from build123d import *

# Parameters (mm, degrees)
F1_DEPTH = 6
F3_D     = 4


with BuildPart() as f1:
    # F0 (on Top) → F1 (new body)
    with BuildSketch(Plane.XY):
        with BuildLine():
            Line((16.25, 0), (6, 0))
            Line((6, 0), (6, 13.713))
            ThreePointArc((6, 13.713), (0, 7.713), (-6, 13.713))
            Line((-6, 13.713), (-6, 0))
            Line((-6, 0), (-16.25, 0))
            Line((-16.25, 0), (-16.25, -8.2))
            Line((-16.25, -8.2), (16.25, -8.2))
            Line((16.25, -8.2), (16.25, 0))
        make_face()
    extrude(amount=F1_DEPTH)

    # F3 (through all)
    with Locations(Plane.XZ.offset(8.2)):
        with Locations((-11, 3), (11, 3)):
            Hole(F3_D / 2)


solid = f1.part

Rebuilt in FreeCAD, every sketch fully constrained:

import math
import FreeCAD as App
import Part
import Sketcher
Q = App.Units.Quantity

doc = App.newDocument("Part")
body = doc.addObject("PartDesign::Body", "Body")

# Sketch on XY plane
sketch1 = doc.addObject("Sketcher::SketchObject", "Sketch")
body.addObject(sketch1)
sketch1.AttachmentSupport = (doc.XY_Plane, [""])
sketch1.MapMode = "FlatFace"
sketch1.addGeometry([
    Part.LineSegment(App.Vector(16, 0, 0), App.Vector(6, 0, 0)),  # 0
    Part.LineSegment(App.Vector(6, 0, 0), App.Vector(6, 14, 0)),  # 1
    Part.ArcOfCircle(Part.Circle(App.Vector(0, 14, 0), App.Vector(0, 0, 1), 6), math.radians(180), math.radians(360)),  # 2
    Part.LineSegment(App.Vector(-6, 14, 0), App.Vector(-6, 0, 0)),  # 3
    Part.LineSegment(App.Vector(-6, 0, 0), App.Vector(-16, 0, 0)),  # 4
    Part.LineSegment(App.Vector(-16, 0, 0), App.Vector(-16, -8, 0)),  # 5
    Part.LineSegment(App.Vector(-16, -8, 0), App.Vector(16, -8, 0)),  # 6
    Part.LineSegment(App.Vector(16, -8, 0), App.Vector(16, 0, 0)),  # 7
], False)
sketch1.addConstraint([
    Sketcher.Constraint("Coincident", 0, 2, 1, 1),
    Sketcher.Constraint("Tangent", 1, 2, 2, 2),
    Sketcher.Constraint("Tangent", 2, 1, 3, 1),
    Sketcher.Constraint("Coincident", 3, 2, 4, 1),
    Sketcher.Constraint("Coincident", 4, 2, 5, 1),
    Sketcher.Constraint("Coincident", 5, 2, 6, 1),
    Sketcher.Constraint("Coincident", 6, 2, 7, 1),
    Sketcher.Constraint("Coincident", 7, 2, 0, 1),
    Sketcher.Constraint("Horizontal", 0),
    Sketcher.Constraint("Vertical", 1),
    Sketcher.Constraint("Vertical", 3),
    Sketcher.Constraint("Horizontal", 4),
    Sketcher.Constraint("Vertical", 5),
    Sketcher.Constraint("Horizontal", 6),
    Sketcher.Constraint("Vertical", 7),
    Sketcher.Constraint("Symmetric", 0, 2, 3, 2, -1, 1),
    Sketcher.Constraint("Symmetric", 4, 2, 7, 2, -2),
    Sketcher.Constraint("Radius", 2, Q("6 mm")),
    Sketcher.Constraint("DistanceX", 6, 1, 6, 2, Q("32.5 mm")),
    Sketcher.Constraint("DistanceY", 5, 2, 5, 1, Q("8.2 mm")),
    Sketcher.Constraint("DistanceY", 1, 1, 1, 2, Q("13.713 mm")),
])
pad1 = doc.addObject("PartDesign::Pad", "Pad")
body.addObject(pad1)
pad1.Profile = sketch1
pad1.Length = 6

# Sketch on XZ plane
sketch2 = doc.addObject("Sketcher::SketchObject", "Sketch001")
body.addObject(sketch2)
sketch2.AttachmentSupport = (doc.XZ_Plane, [""])
sketch2.MapMode = "FlatFace"
sketch2.AttachmentOffset = App.Placement(App.Vector(0, 0, 8.2), App.Rotation())
sketch2.addGeometry([
    Part.Circle(App.Vector(-11, 3, 0), App.Vector(0, 0, 1), 2),
    Part.Circle(App.Vector(11, 3, 0), App.Vector(0, 0, 1), 2),
], False)
sketch2.addConstraint([
    Sketcher.Constraint("Equal", 0, 1),
    Sketcher.Constraint("Symmetric", 0, 3, 1, 3, -2),
    Sketcher.Constraint("Diameter", 0, Q("4 mm")),
    Sketcher.Constraint("DistanceX", 0, 3, -1, 1, Q("11 mm")),
    Sketcher.Constraint("DistanceY", -1, 1, 0, 3, Q("3 mm")),
])
doc.recompute()
hole = doc.addObject("PartDesign::Hole", "Hole")
body.addObject(hole)
hole.Profile = sketch2
hole.ThreadType = "None"
hole.Diameter = 4
hole.DepthType = "ThroughAll"

doc.recompute()
